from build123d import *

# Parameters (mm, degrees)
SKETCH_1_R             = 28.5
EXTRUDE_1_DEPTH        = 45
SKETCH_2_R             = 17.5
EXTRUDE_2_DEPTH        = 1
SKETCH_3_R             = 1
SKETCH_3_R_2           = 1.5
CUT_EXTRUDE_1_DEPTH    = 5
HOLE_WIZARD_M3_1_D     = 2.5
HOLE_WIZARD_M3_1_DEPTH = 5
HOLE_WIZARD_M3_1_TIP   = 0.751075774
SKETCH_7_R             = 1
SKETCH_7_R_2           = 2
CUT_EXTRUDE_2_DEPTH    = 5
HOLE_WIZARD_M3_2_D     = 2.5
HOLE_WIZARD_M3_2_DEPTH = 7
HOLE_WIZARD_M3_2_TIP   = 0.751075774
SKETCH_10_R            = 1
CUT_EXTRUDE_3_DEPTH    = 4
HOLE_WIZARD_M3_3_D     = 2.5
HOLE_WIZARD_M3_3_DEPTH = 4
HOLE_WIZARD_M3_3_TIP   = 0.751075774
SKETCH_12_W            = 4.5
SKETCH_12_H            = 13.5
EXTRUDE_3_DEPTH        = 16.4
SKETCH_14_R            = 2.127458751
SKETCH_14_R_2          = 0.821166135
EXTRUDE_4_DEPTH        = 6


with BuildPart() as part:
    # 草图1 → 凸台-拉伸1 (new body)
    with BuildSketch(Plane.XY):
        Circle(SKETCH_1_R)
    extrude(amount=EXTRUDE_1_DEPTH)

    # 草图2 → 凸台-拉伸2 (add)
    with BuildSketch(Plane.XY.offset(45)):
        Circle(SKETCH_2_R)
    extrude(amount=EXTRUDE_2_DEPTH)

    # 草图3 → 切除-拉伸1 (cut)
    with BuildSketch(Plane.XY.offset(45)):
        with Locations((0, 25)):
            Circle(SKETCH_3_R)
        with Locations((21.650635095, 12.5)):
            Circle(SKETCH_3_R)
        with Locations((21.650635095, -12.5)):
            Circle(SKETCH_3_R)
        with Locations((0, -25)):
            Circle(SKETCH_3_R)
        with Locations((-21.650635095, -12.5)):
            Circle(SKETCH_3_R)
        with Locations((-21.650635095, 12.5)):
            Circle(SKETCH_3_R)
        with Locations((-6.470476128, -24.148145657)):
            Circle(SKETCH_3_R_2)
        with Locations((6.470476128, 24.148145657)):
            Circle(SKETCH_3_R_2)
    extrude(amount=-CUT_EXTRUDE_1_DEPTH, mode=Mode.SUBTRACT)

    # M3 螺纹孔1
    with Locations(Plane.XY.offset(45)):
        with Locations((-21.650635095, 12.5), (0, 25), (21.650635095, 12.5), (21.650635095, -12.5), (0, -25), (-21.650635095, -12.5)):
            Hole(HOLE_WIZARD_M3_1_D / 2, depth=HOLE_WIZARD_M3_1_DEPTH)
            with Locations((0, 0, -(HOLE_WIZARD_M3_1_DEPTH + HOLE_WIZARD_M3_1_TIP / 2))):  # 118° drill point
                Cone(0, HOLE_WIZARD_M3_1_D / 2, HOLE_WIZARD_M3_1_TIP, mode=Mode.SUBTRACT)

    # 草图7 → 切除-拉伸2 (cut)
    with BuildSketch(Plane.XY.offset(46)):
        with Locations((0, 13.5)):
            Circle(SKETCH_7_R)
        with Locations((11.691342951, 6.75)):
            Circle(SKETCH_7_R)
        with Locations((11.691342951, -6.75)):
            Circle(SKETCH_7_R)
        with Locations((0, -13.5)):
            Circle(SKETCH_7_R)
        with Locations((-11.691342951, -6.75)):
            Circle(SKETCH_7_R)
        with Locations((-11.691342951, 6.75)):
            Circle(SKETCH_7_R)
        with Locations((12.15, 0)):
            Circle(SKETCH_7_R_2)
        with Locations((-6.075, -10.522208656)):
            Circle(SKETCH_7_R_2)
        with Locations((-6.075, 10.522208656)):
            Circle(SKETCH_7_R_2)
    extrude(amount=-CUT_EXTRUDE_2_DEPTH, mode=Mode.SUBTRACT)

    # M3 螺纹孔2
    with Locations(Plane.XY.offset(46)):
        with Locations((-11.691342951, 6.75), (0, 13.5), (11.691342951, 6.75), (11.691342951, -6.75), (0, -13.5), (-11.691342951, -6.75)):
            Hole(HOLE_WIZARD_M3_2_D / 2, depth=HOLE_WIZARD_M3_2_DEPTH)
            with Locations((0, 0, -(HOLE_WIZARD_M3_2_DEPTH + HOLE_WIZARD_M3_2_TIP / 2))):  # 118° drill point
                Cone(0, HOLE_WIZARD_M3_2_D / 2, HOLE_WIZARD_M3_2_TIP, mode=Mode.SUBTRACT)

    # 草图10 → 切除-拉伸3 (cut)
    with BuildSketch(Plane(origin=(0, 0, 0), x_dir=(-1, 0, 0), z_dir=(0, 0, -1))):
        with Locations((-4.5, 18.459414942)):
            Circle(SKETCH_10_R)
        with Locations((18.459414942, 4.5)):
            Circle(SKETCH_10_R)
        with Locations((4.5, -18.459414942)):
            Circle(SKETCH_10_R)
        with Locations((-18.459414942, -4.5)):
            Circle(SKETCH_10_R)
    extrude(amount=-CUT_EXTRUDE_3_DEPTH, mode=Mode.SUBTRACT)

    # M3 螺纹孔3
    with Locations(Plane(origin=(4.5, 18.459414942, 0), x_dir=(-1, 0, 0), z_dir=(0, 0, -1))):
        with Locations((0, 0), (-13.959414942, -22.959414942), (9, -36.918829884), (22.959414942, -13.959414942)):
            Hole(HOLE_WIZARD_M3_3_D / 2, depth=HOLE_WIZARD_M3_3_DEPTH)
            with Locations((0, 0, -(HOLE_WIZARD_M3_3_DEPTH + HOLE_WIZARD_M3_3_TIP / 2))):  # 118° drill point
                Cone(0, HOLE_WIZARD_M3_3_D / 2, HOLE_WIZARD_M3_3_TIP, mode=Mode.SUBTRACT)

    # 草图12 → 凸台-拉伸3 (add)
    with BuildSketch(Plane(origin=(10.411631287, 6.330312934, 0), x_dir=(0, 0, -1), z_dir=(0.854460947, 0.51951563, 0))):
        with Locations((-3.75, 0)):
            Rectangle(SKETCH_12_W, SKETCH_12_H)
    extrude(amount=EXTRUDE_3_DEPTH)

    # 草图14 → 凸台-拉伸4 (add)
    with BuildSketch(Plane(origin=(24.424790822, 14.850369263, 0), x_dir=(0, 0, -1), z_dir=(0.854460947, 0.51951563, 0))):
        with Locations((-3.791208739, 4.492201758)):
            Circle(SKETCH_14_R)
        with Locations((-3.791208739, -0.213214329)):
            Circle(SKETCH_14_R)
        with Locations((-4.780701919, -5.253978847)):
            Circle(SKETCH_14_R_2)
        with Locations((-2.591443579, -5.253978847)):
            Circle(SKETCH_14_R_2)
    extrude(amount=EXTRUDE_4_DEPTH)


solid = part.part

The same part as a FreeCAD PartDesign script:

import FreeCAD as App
import Part
import Sketcher
from FreeCAD import Vector


def add_polygon(sketch, points):
    """Adds a closed chain of lines whose ends are joined by coincident constraints."""
    first, n = sketch.GeometryCount, len(points)
    for a, b in zip(points, points[1:] + points[:1]):
        sketch.addGeometry(Part.LineSegment(App.Vector(*a, 0), App.Vector(*b, 0)), False)
    for i in range(n):
        sketch.addConstraint(Sketcher.Constraint("Coincident", first + i, 2, first + (i + 1) % n, 1))

doc = App.newDocument("Part")
params = doc.addObject("Spreadsheet::Sheet", "Params")
for row, (alias, value) in enumerate([
    ("sketch1_diameter", "57 mm"),
    ("pad1_length", "45 mm"),
    ("sketch2_diameter", "35 mm"),
    ("pad2_length", "1 mm"),
    ("sketch3_diameter", "2 mm"),
    ("sketch3_diameter2", "3 mm"),
    ("pocket1_length", "5 mm"),
    ("sketch4_diameter", "2.5 mm"),
    ("hole_diameter", "2.5 mm"),
    ("hole_depth", "5 mm"),
    ("sketch5_diameter", "2 mm"),
    ("sketch5_diameter2", "4 mm"),
    ("pocket2_length", "5 mm"),
    ("sketch6_diameter", "2.5 mm"),
    ("hole2_diameter", "2.5 mm"),
    ("hole2_depth", "7 mm"),
    ("sketch7_diameter", "2 mm"),
    ("pocket3_length", "4 mm"),
    ("sketch8_diameter", "2.5 mm"),
    ("hole3_diameter", "2.5 mm"),
    ("hole3_depth", "4 mm"),
    ("sketch9_width", "4.5 mm"),
    ("sketch9_height", "13.5 mm"),
    ("pad3_length", "16.4 mm"),
    ("pad4_length", "6 mm"),
], start=1):
    params.set(f"A{row}", alias)
    params.set(f"B{row}", "=" + value)
    params.setAlias(f"B{row}", alias)

body = doc.addObject("PartDesign::Body", "Body")

sketch1 = body.newObject("Sketcher::SketchObject", "Sketch")
sketch1.AttachmentSupport = (doc.getObject("XY_Plane"), [""])
sketch1.MapMode = "FlatFace"
sketch1.addGeometry(Part.Circle(Vector(0, 0, 0), Vector(0, 0, 1), 28.5), False)
sketch1.addConstraint([
    Sketcher.Constraint("Coincident", 0, 3, -1, 1),
    Sketcher.Constraint("Diameter", 0, 57.0),
])
sketch1.setExpression("Constraints[1]", "Params.sketch1_diameter")
pad1 = body.newObject("PartDesign::Pad", "Pad")
pad1.Profile = sketch1
pad1.setExpression("Length", "Params.pad1_length")

sketch2 = body.newObject("Sketcher::SketchObject", "Sketch001")
sketch2.AttachmentSupport = (doc.getObject("XY_Plane"), [""])
sketch2.MapMode = "FlatFace"
sketch2.AttachmentOffset = App.Placement(Vector(0, 0, 45), App.Rotation())
sketch2.addGeometry(Part.Circle(Vector(0, 0, 0), Vector(0, 0, 1), 17.5), False)
sketch2.addConstraint([
    Sketcher.Constraint("Coincident", 0, 3, -1, 1),
    Sketcher.Constraint("Diameter", 0, 35.0),
])
sketch2.setExpression("Constraints[1]", "Params.sketch2_diameter")
pad2 = body.newObject("PartDesign::Pad", "Pad001")
pad2.Profile = sketch2
pad2.setExpression("Length", "Params.pad2_length")

sketch3 = body.newObject("Sketcher::SketchObject", "Sketch002")
sketch3.AttachmentSupport = (doc.getObject("XY_Plane"), [""])
sketch3.MapMode = "FlatFace"
sketch3.AttachmentOffset = App.Placement(Vector(0, 0, 45), App.Rotation())
sketch3.addGeometry([
    Part.Circle(Vector(0, 25, 0), Vector(0, 0, 1), 1),
    Part.Circle(Vector(21.650635, 12.5, 0), Vector(0, 0, 1), 1),
    Part.Circle(Vector(21.650635, -12.5, 0), Vector(0, 0, 1), 1),
    Part.Circle(Vector(0, -25, 0), Vector(0, 0, 1), 1),
    Part.Circle(Vector(-21.650635, -12.5, 0), Vector(0, 0, 1), 1),
    Part.Circle(Vector(-21.650635, 12.5, 0), Vector(0, 0, 1), 1),
    Part.Circle(Vector(-6.470476, -24.148146, 0), Vector(0, 0, 1), 1.5),
    Part.Circle(Vector(6.470476, 24.148146, 0), Vector(0, 0, 1), 1.5),
], False)
sketch3.addConstraint([
    Sketcher.Constraint("Equal", 0, 1),
    Sketcher.Constraint("Equal", 1, 2),
    Sketcher.Constraint("Equal", 2, 3),
    Sketcher.Constraint("Equal", 3, 4),
    Sketcher.Constraint("Equal", 4, 5),
    Sketcher.Constraint("Equal", 6, 7),
    Sketcher.Constraint("Symmetric", 0, 3, 3, 3, -1, 1),
    Sketcher.Constraint("Symmetric", 1, 3, 4, 3, -1, 1),
    Sketcher.Constraint("Symmetric", 2, 3, 5, 3, -1, 1),
    Sketcher.Constraint("Symmetric", 6, 3, 7, 3, -1, 1),
    Sketcher.Constraint("Symmetric", 2, 3, 4, 3, -2),
    Sketcher.Constraint("PointOnObject", 0, 3, -2),
    Sketcher.Constraint("Diameter", 0, 2.0),
    Sketcher.Constraint("Diameter", 6, 3.0),
    Sketcher.Constraint("DistanceY", -1, 1, 0, 3, 25.0),
    Sketcher.Constraint("DistanceY", 2, 3, 1, 3, 25.0),
    Sketcher.Constraint("DistanceX", 4, 3, 2, 3, 43.30127),
    Sketcher.Constraint("DistanceX", 4, 3, 6, 3, 15.180159),
    Sketcher.Constraint("DistanceY", 6, 3, -1, 1, 24.148146),
])
sketch3.setExpression("Constraints[12]", "Params.sketch3_diameter")
sketch3.setExpression("Constraints[13]", "Params.sketch3_diameter2")
pocket1 = body.newObject("PartDesign::Pocket", "Pocket")
pocket1.Profile = sketch3
pocket1.setExpression("Length", "Params.pocket1_length")

sketch4 = body.newObject("Sketcher::SketchObject", "Sketch003")
sketch4.AttachmentSupport = (doc.getObject("XY_Plane"), [""])
sketch4.MapMode = "FlatFace"
sketch4.AttachmentOffset = App.Placement(Vector(0, 0, 45), App.Rotation())
sketch4.addGeometry([
    Part.Circle(Vector(-21.650635, 12.5, 0), Vector(0, 0, 1), 1.25),
    Part.Circle(Vector(0, 25, 0), Vector(0, 0, 1), 1.25),
    Part.Circle(Vector(21.650635, 12.5, 0), Vector(0, 0, 1), 1.25),
    Part.Circle(Vector(21.650635, -12.5, 0), Vector(0, 0, 1), 1.25),
    Part.Circle(Vector(0, -25, 0), Vector(0, 0, 1), 1.25),
    Part.Circle(Vector(-21.650635, -12.5, 0), Vector(0, 0, 1), 1.25),
], False)
sketch4.addConstraint([
    Sketcher.Constraint("Equal", 0, 1),
    Sketcher.Constraint("Equal", 1, 2),
    Sketcher.Constraint("Equal", 2, 3),
    Sketcher.Constraint("Equal", 3, 4),
    Sketcher.Constraint("Equal", 4, 5),
    Sketcher.Constraint("Symmetric", 0, 3, 3, 3, -1, 1),
    Sketcher.Constraint("Symmetric", 1, 3, 4, 3, -1, 1),
    Sketcher.Constraint("Symmetric", 2, 3, 5, 3, -1, 1),
    Sketcher.Constraint("Symmetric", 0, 3, 2, 3, -2),
    Sketcher.Constraint("PointOnObject", 1, 3, -2),
    Sketcher.Constraint("Diameter", 0, 2.5),
    Sketcher.Constraint("DistanceY", -1, 1, 1, 3, 25.0),
    Sketcher.Constraint("DistanceY", 3, 3, 2, 3, 25.0),
    Sketcher.Constraint("DistanceX", 0, 3, 2, 3, 43.30127),
])
sketch4.setExpression("Constraints[10]", "Params.sketch4_diameter")
doc.recompute()
hole = body.newObject("PartDesign::Hole", "Hole")
hole.Profile = sketch4
hole.ThreadType = "None"
hole.setExpression("Diameter", "Params.hole_diameter")
hole.DepthType = "Dimension"
hole.setExpression("Depth", "Params.hole_depth")
hole.DrillPoint = "Angled"
hole.DrillPointAngle = 118

sketch5 = body.newObject("Sketcher::SketchObject", "Sketch004")
sketch5.AttachmentSupport = (doc.getObject("XY_Plane"), [""])
sketch5.MapMode = "FlatFace"
sketch5.AttachmentOffset = App.Placement(Vector(0, 0, 46), App.Rotation())
sketch5.addGeometry([
    Part.Circle(Vector(0, 13.5, 0), Vector(0, 0, 1), 1),
    Part.Circle(Vector(11.691343, 6.75, 0), Vector(0, 0, 1), 1),
    Part.Circle(Vector(11.691343, -6.75, 0), Vector(0, 0, 1), 1),
    Part.Circle(Vector(0, -13.5, 0), Vector(0, 0, 1), 1),
    Part.Circle(Vector(-11.691343, -6.75, 0), Vector(0, 0, 1), 1),
    Part.Circle(Vector(-11.691343, 6.75, 0), Vector(0, 0, 1), 1),
    Part.Circle(Vector(12.15, 0, 0), Vector(0, 0, 1), 2),
    Part.Circle(Vector(-6.075, -10.522209, 0), Vector(0, 0, 1), 2),
    Part.Circle(Vector(-6.075, 10.522209, 0), Vector(0, 0, 1), 2),
], False)
sketch5.addConstraint([
    Sketcher.Constraint("Equal", 0, 1),
    Sketcher.Constraint("Equal", 1, 2),
    Sketcher.Constraint("Equal", 2, 3),
    Sketcher.Constraint("Equal", 3, 4),
    Sketcher.Constraint("Equal", 4, 5),
    Sketcher.Constraint("Equal", 6, 7),
    Sketcher.Constraint("Equal", 7, 8),
    Sketcher.Constraint("Symmetric", 0, 3, 3, 3, -1, 1),
    Sketcher.Constraint("Symmetric", 1, 3, 4, 3, -1, 1),
    Sketcher.Constraint("Symmetric", 2, 3, 5, 3, -1, 1),
    Sketcher.Constraint("Symmetric", 2, 3, 4, 3, -2),
    Sketcher.Constraint("Symmetric", 7, 3, 8, 3, -1),
    Sketcher.Constraint("PointOnObject", 0, 3, -2),
    Sketcher.Constraint("PointOnObject", 6, 3, -1),
    Sketcher.Constraint("Diameter", 0, 2.0),
    Sketcher.Constraint("Diameter", 6, 4.0),
    Sketcher.Constraint("DistanceY", 3, 3, 0, 3, 27.0),
    Sketcher.Constraint("DistanceY", 2, 3, 1, 3, 13.5),
    Sketcher.Constraint("DistanceX", -1, 1, 6, 3, 12.15),
    Sketcher.Constraint("DistanceX", 7, 3, -1, 1, 6.075),
    Sketcher.Constraint("DistanceY", 7, 3, -1, 1, 10.522209),
    Sketcher.Constraint("DistanceX", -1, 1, 1, 3, 11.691343),
])
sketch5.setExpression("Constraints[14]", "Params.sketch5_diameter")
sketch5.setExpression("Constraints[15]", "Params.sketch5_diameter2")
pocket2 = body.newObject("PartDesign::Pocket", "Pocket001")
pocket2.Profile = sketch5
pocket2.setExpression("Length", "Params.pocket2_length")

sketch6 = body.newObject("Sketcher::SketchObject", "Sketch005")
sketch6.AttachmentSupport = (doc.getObject("XY_Plane"), [""])
sketch6.MapMode = "FlatFace"
sketch6.AttachmentOffset = App.Placement(Vector(0, 0, 46), App.Rotation())
sketch6.addGeometry([
    Part.Circle(Vector(-11.691343, 6.75, 0), Vector(0, 0, 1), 1.25),
    Part.Circle(Vector(0, 13.5, 0), Vector(0, 0, 1), 1.25),
    Part.Circle(Vector(11.691343, 6.75, 0), Vector(0, 0, 1), 1.25),
    Part.Circle(Vector(11.691343, -6.75, 0), Vector(0, 0, 1), 1.25),
    Part.Circle(Vector(0, -13.5, 0), Vector(0, 0, 1), 1.25),
    Part.Circle(Vector(-11.691343, -6.75, 0), Vector(0, 0, 1), 1.25),
], False)
sketch6.addConstraint([
    Sketcher.Constraint("Equal", 0, 1),
    Sketcher.Constraint("Equal", 1, 2),
    Sketcher.Constraint("Equal", 2, 3),
    Sketcher.Constraint("Equal", 3, 4),
    Sketcher.Constraint("Equal", 4, 5),
    Sketcher.Constraint("Symmetric", 0, 3, 3, 3, -1, 1),
    Sketcher.Constraint("Symmetric", 1, 3, 4, 3, -1, 1),
    Sketcher.Constraint("Symmetric", 2, 3, 5, 3, -1, 1),
    Sketcher.Constraint("Symmetric", 0, 3, 2, 3, -2),
    Sketcher.Constraint("PointOnObject", 1, 3, -2),
    Sketcher.Constraint("Diameter", 0, 2.5),
    Sketcher.Constraint("DistanceY", 4, 3, 1, 3, 27.0),
    Sketcher.Constraint("DistanceY", 3, 3, 2, 3, 13.5),
    Sketcher.Constraint("DistanceX", 0, 3, -1, 1, 11.691343),
])
sketch6.setExpression("Constraints[10]", "Params.sketch6_diameter")
doc.recompute()
hole2 = body.newObject("PartDesign::Hole", "Hole001")
hole2.Profile = sketch6
hole2.ThreadType = "None"
hole2.setExpression("Diameter", "Params.hole2_diameter")
hole2.DepthType = "Dimension"
hole2.setExpression("Depth", "Params.hole2_depth")
hole2.DrillPoint = "Angled"
hole2.DrillPointAngle = 118

sketch7 = body.newObject("Sketcher::SketchObject", "Sketch006")
sketch7.AttachmentSupport = (doc.getObject("XY_Plane"), [""])
sketch7.MapMode = "FlatFace"
sketch7.addGeometry([
    Part.Circle(Vector(4.5, 18.459415, 0), Vector(0, 0, 1), 1),
    Part.Circle(Vector(-18.459415, 4.5, 0), Vector(0, 0, 1), 1),
    Part.Circle(Vector(-4.5, -18.459415, 0), Vector(0, 0, 1), 1),
    Part.Circle(Vector(18.459415, -4.5, 0), Vector(0, 0, 1), 1),
], False)
sketch7.addConstraint([
    Sketcher.Constraint("Equal", 0, 1),
    Sketcher.Constraint("Equal", 1, 2),
    Sketcher.Constraint("Equal", 2, 3),
    Sketcher.Constraint("Symmetric", 0, 3, 2, 3, -1, 1),
    Sketcher.Constraint("Symmetric", 1, 3, 3, 3, -1, 1),
    Sketcher.Constraint("Diameter", 0, 2.0),
    Sketcher.Constraint("DistanceX", 2, 3, 0, 3, 9.0),
    Sketcher.Constraint("DistanceY", 3, 3, 1, 3, 9.0),
    Sketcher.Constraint("DistanceY", 2, 3, 0, 3, 36.91883),
    Sketcher.Constraint("DistanceX", 1, 3, 3, 3, 36.91883),
])
sketch7.setExpression("Constraints[5]", "Params.sketch7_diameter")
pocket3 = body.newObject("PartDesign::Pocket", "Pocket002")
pocket3.Profile = sketch7
pocket3.setExpression("Length", "Params.pocket3_length")
pocket3.Reversed = True

sketch8 = body.newObject("Sketcher::SketchObject", "Sketch007")
sketch8.AttachmentSupport = (doc.getObject("XY_Plane"), [""])
sketch8.MapMode = "FlatFace"
sketch8.addGeometry([
    Part.Circle(Vector(4.5, 18.459415, 0), Vector(0, 0, 1), 1.25),
    Part.Circle(Vector(18.459415, -4.5, 0), Vector(0, 0, 1), 1.25),
    Part.Circle(Vector(-4.5, -18.459415, 0), Vector(0, 0, 1), 1.25),
    Part.Circle(Vector(-18.459415, 4.5, 0), Vector(0, 0, 1), 1.25),
], False)
sketch8.addConstraint([
    Sketcher.Constraint("Equal", 0, 1),
    Sketcher.Constraint("Equal", 1, 2),
    Sketcher.Constraint("Equal", 2, 3),
    Sketcher.Constraint("Symmetric", 0, 3, 2, 3, -1, 1),
    Sketcher.Constraint("Symmetric", 1, 3, 3, 3, -1, 1),
    Sketcher.Constraint("Diameter", 0, 2.5),
    Sketcher.Constraint("DistanceX", 2, 3, 0, 3, 9.0),
    Sketcher.Constraint("DistanceY", 1, 3, 3, 3, 9.0),
    Sketcher.Constraint("DistanceY", 2, 3, 0, 3, 36.91883),
    Sketcher.Constraint("DistanceX", 3, 3, 1, 3, 36.91883),
])
sketch8.setExpression("Constraints[5]", "Params.sketch8_diameter")
doc.recompute()
hole3 = body.newObject("PartDesign::Hole", "Hole002")
hole3.Profile = sketch8
hole3.ThreadType = "None"
hole3.setExpression("Diameter", "Params.hole3_diameter")
hole3.DepthType = "Dimension"
hole3.setExpression("Depth", "Params.hole3_depth")
hole3.DrillPoint = "Angled"
hole3.DrillPointAngle = 118
hole3.Reversed = True

sketch9 = body.newObject("Sketcher::SketchObject", "Sketch008")
sketch9.Placement = App.Placement(Vector(10.411631, 6.330313, 0), App.Rotation(Vector(0, 0, -1), Vector(-0.51951563, 0.854460947, 0), Vector(0.854460947, 0.51951563, 0), "ZXY"))
add_polygon(sketch9, [(-6, 6.75), (-6, -6.75), (-1.5, -6.75), (-1.5, 6.75)])
sketch9.addConstraint([
    Sketcher.Constraint("Vertical", 0),
    Sketcher.Constraint("Horizontal", 1),
    Sketcher.Constraint("Vertical", 2),
    Sketcher.Constraint("Horizontal", 3),
    Sketcher.Constraint("DistanceX", 1, 1, 1, 2, 4.5),
    Sketcher.Constraint("DistanceY", 0, 2, 0, 1, 13.5),
    Sketcher.Constraint("DistanceX", 0, 2, -1, 1, 6.0),
    Sketcher.Constraint("DistanceY", 0, 2, -1, 1, 6.75),
])
sketch9.setExpression("Constraints[8]", "Params.sketch9_width")
sketch9.setExpression("Constraints[9]", "Params.sketch9_height")
pad3 = body.newObject("PartDesign::Pad", "Pad002")
pad3.Profile = sketch9
pad3.setExpression("Length", "Params.pad3_length")

sketch10 = body.newObject("Sketcher::SketchObject", "Sketch009")
sketch10.Placement = App.Placement(Vector(24.424791, 14.850369, 0), App.Rotation(Vector(0, 0, -1), Vector(-0.51951563, 0.854460947, 0), Vector(0.854460947, 0.51951563, 0), "ZXY"))
sketch10.addGeometry([
    Part.Circle(Vector(-3.791209, 4.492202, 0), Vector(0, 0, 1), 2.127459),
    Part.Circle(Vector(-3.791209, -0.213214, 0), Vector(0, 0, 1), 2.127459),
    Part.Circle(Vector(-4.780702, -5.253979, 0), Vector(0, 0, 1), 0.821166),
    Part.Circle(Vector(-2.591444, -5.253979, 0), Vector(0, 0, 1), 0.821166),
], False)
sketch10.addConstraint([
    Sketcher.Constraint("Equal", 0, 1),
    Sketcher.Constraint("Equal", 2, 3),
    Sketcher.Constraint("Horizontal", 2, 3, 3, 3),
    Sketcher.Constraint("Vertical", 0, 3, 1, 3),
    Sketcher.Constraint("Diameter", 0, 4.254918),
    Sketcher.Constraint("Diameter", 2, 1.642332),
    Sketcher.Constraint("DistanceY", -1, 1, 0, 3, 4.492202),
    Sketcher.Constraint("DistanceX", 2, 3, -1, 1, 4.780702),
    Sketcher.Constraint("DistanceX", 0, 3, -1, 1, 3.791209),
    Sketcher.Constraint("DistanceY", 2, 3, -1, 1, 5.253979),
    Sketcher.Constraint("DistanceX", 2, 3, 3, 3, 2.189258),
    Sketcher.Constraint("DistanceY", 1, 3, -1, 1, 0.213214),
])
pad4 = body.newObject("PartDesign::Pad", "Pad003")
pad4.Profile = sketch10
pad4.setExpression("Length", "Params.pad4_length")

doc.recompute()
